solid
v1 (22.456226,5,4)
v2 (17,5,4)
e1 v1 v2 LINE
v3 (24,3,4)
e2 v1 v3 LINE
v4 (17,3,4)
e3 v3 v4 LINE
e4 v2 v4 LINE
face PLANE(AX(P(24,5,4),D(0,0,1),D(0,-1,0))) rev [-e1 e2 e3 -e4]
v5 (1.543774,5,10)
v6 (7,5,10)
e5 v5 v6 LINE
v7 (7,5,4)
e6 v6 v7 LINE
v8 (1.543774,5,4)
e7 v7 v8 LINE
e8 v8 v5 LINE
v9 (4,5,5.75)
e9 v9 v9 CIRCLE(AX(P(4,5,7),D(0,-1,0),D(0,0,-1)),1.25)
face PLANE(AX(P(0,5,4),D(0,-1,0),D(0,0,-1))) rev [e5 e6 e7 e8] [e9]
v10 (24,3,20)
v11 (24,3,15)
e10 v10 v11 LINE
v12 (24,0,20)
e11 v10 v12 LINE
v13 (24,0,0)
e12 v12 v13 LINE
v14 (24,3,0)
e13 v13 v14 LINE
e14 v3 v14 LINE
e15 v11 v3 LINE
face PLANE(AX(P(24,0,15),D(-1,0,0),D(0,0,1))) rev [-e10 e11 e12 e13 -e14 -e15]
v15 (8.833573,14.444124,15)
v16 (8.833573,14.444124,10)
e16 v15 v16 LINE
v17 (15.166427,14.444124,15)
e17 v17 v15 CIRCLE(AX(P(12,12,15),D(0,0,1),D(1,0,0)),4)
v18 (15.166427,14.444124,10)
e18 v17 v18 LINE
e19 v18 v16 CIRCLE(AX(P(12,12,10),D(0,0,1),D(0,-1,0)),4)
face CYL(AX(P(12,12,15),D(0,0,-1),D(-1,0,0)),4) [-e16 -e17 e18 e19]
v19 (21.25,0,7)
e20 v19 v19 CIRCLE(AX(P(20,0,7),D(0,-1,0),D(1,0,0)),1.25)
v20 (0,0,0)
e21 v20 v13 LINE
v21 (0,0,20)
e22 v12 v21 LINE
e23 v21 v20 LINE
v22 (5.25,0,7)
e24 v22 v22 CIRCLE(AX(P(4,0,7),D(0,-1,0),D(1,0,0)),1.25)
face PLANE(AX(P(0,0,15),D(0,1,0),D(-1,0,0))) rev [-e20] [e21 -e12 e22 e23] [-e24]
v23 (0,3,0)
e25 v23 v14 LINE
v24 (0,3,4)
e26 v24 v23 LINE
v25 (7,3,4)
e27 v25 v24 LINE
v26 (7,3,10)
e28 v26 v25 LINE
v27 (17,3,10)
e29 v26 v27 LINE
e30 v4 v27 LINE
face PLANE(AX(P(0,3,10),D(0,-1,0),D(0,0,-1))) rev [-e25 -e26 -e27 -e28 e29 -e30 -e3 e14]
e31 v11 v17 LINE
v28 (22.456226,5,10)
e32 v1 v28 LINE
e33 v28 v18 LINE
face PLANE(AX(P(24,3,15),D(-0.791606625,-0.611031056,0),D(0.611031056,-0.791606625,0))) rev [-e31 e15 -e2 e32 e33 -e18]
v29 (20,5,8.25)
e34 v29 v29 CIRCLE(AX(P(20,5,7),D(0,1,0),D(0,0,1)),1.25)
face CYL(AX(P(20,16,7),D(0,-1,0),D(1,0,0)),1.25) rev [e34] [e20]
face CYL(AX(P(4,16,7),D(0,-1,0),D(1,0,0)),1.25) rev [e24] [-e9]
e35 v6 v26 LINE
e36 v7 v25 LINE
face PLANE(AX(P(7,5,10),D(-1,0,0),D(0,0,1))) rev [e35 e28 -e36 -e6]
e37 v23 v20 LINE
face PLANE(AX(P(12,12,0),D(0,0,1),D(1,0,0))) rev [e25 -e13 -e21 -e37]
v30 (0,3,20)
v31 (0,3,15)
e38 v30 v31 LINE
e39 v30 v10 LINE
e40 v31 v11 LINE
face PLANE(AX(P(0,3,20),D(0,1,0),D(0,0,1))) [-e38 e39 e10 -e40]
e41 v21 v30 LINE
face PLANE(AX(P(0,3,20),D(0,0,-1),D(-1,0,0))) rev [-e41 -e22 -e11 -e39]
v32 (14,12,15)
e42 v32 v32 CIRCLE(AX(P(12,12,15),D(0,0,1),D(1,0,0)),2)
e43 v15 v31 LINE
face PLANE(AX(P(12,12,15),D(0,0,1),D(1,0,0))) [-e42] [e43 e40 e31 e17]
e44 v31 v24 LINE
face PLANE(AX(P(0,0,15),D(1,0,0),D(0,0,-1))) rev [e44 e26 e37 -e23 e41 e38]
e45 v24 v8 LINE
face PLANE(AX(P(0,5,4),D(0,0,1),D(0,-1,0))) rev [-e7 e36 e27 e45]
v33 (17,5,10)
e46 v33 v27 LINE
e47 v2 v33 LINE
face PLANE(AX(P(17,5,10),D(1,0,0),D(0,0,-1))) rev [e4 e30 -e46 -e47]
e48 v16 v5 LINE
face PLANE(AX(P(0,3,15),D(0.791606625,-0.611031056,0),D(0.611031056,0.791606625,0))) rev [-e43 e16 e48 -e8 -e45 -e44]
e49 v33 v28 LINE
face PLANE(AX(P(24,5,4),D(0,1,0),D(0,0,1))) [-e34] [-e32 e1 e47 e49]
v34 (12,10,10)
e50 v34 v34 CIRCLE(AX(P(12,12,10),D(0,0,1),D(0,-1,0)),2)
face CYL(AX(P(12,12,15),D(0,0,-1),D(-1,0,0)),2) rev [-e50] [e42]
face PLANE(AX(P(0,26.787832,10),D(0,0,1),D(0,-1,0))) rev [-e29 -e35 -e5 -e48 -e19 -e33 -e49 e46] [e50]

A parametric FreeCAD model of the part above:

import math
import FreeCAD as App
import Part
import Sketcher

V = App.Vector

doc = App.newDocument("Part")
body = doc.addObject("PartDesign::Body", "Body")

sketch1 = body.newObject("Sketcher::SketchObject", "Sketch")
sketch1.AttachmentSupport = (doc.getObject("XY_Plane"), [""])
sketch1.MapMode = "FlatFace"
sketch1.addGeometry([
    Part.LineSegment(V(0, 0, 0), V(24, 0, 0)),
    Part.LineSegment(V(24, 0, 0), V(24, 3, 0)),
    Part.LineSegment(V(24, 3, 0), V(15.166427, 14.444124, 0)),
    Part.ArcOfCircle(Part.Circle(V(12, 12, 0), V(0, 0, 1), 4), math.radians(37.664092), math.radians(142.335908)),
    Part.LineSegment(V(8.833573, 14.444124, 0), V(0, 3, 0)),
    Part.LineSegment(V(0, 3, 0), V(0, 0, 0)),
    Part.Circle(V(12, 12, 0), V(0, 0, 1), 2),
], False)
sketch1.addConstraint([
    Sketcher.Constraint("Coincident", 0, 2, 1, 1),
    Sketcher.Constraint("Coincident", 1, 2, 2, 1),
    Sketcher.Constraint("Tangent", 2, 2, 3, 1),
    Sketcher.Constraint("Tangent", 3, 2, 4, 1),
    Sketcher.Constraint("Coincident", 4, 2, 5, 1),
    Sketcher.Constraint("Coincident", 5, 2, 0, 1),
    Sketcher.Constraint("Horizontal", 0),
    Sketcher.Constraint("Vertical", 1),
    Sketcher.Constraint("Vertical", 5),
    Sketcher.Constraint("Coincident", 5, 2, -1, 1),
    Sketcher.Constraint("Coincident", 6, 3, 3, 3),
    Sketcher.Constraint("Horizontal", 2, 2, 3, 2),
    Sketcher.Constraint("Horizontal", 1, 2, 4, 2),
    Sketcher.Constraint("Diameter", 6, 4.0),
    Sketcher.Constraint("Radius", 3, 4.0),
    Sketcher.Constraint("DistanceX", 0, 1, 0, 2, 24.0),
    Sketcher.Constraint("DistanceY", 1, 1, 1, 2, 3.0),
    Sketcher.Constraint("DistanceY", -1, 1, 3, 3, 12.0),
])
pad1 = body.newObject("PartDesign::Pad", "Pad")
pad1.Profile = sketch1
pad1.Length = 15

sketch2 = body.newObject("Sketcher::SketchObject", "Sketch001")
sketch2.AttachmentSupport = (doc.getObject("YZ_Plane"), [""])
sketch2.MapMode = "FlatFace"
sketch2.AttachmentOffset = App.Placement(V(0, 0, 24), App.Rotation())
sketch2.addGeometry([
    Part.LineSegment(V(26.787832, 10, 0), V(3, 10, 0)),
    Part.LineSegment(V(3, 10, 0), V(3, 0, 0)),
    Part.LineSegment(V(3, 0, 0), V(26.787832, 0, 0)),
    Part.LineSegment(V(26.787832, 0, 0), V(26.787832, 10, 0)),
], False)
sketch2.addConstraint([
    Sketcher.Constraint("Coincident", 0, 2, 1, 1),
    Sketcher.Constraint("Coincident", 1, 2, 2, 1),
    Sketcher.Constraint("Coincident", 2, 2, 3, 1),
    Sketcher.Constraint("Coincident", 3, 2, 0, 1),
    Sketcher.Constraint("Horizontal", 0),
    Sketcher.Constraint("Vertical", 1),
    Sketcher.Constraint("Horizontal", 2),
    Sketcher.Constraint("Vertical", 3),
    Sketcher.Constraint("PointOnObject", 1, 2, -1),
    Sketcher.Constraint("DistanceY", 1, 2, 1, 1, 10.0),
    Sketcher.Constraint("DistanceX", -1, 1, 0, 2, 3.0),
    Sketcher.Constraint("DistanceX", 0, 2, 0, 1, 23.787832),
])
pocket1 = body.newObject("PartDesign::Pocket", "Pocket")
pocket1.Profile = sketch2
pocket1.Type = "ThroughAll"

sketch3 = body.newObject("Sketcher::SketchObject", "Sketch002")
sketch3.AttachmentSupport = (doc.getObject("XZ_Plane"), [""])
sketch3.MapMode = "FlatFace"
sketch3.AttachmentOffset = App.Placement(V(0, 0, -3), App.Rotation())
sketch3.addGeometry([
    Part.LineSegment(V(24, 10, 0), V(24, 4, 0)),
    Part.LineSegment(V(24, 4, 0), V(17, 4, 0)),
    Part.LineSegment(V(17, 4, 0), V(17, 10, 0)),
    Part.LineSegment(V(17, 10, 0), V(24, 10, 0)),
    Part.LineSegment(V(7, 10, 0), V(7, 4, 0)),
    Part.LineSegment(V(7, 4, 0), V(0, 4, 0)),
    Part.LineSegment(V(0, 4, 0), V(0, 10, 0)),
    Part.LineSegment(V(0, 10, 0), V(7, 10, 0)),
], False)
sketch3.addConstraint([
    Sketcher.Constraint("Coincident", 0, 2, 1, 1),
    Sketcher.Constraint("Coincident", 1, 2, 2, 1),
    Sketcher.Constraint("Coincident", 2, 2, 3, 1),
    Sketcher.Constraint("Coincident", 3, 2, 0, 1),
    Sketcher.Constraint("Coincident", 4, 2, 5, 1),
    Sketcher.Constraint("Coincident", 5, 2, 6, 1),
    Sketcher.Constraint("Coincident", 6, 2, 7, 1),
    Sketcher.Constraint("Coincident", 7, 2, 4, 1),
    Sketcher.Constraint("Vertical", 0),
    Sketcher.Constraint("Horizontal", 1),
    Sketcher.Constraint("Vertical", 2),
    Sketcher.Constraint("Horizontal", 3),
    Sketcher.Constraint("Vertical", 4),
    Sketcher.Constraint("Horizontal", 5),
    Sketcher.Constraint("Vertical", 6),
    Sketcher.Constraint("Horizontal", 7),
    Sketcher.Constraint("PointOnObject", 5, 2, -2),
    Sketcher.Constraint("Horizontal", 1, 2, 4, 2),
    Sketcher.Constraint("Horizontal", 3, 2, 6, 2),
    Sketcher.Constraint("Equal", 3, 5),
    Sketcher.Constraint("DistanceX", 1, 2, 1, 1, 7.0),
    Sketcher.Constraint("DistanceY", 0, 2, 0, 1, 6.0),
    Sketcher.Constraint("DistanceX", -1, 1, 0, 2, 24.0),
    Sketcher.Constraint("DistanceY", -1, 1, 0, 2, 4.0),
])
pad2 = body.newObject("PartDesign::Pad", "Pad001")
pad2.Profile = sketch3
pad2.Length = 2
pad2.Reversed = True

sketch4 = body.newObject("Sketcher::SketchObject", "Sketch003")
sketch4.AttachmentSupport = (doc.getObject("XZ_Plane"), [""])
sketch4.MapMode = "FlatFace"
sketch4.addGeometry([
    Part.Circle(V(4, 7, 0), V(0, 0, 1), 1.25),
    Part.Circle(V(20, 7, 0), V(0, 0, 1), 1.25),
], False)
sketch4.addConstraint([
    Sketcher.Constraint("Equal", 0, 1),
    Sketcher.Constraint("Horizontal", 0, 3, 1, 3),
    Sketcher.Constraint("Diameter", 0, 2.5),
    Sketcher.Constraint("DistanceX", -1, 1, 0, 3, 4.0),
    Sketcher.Constraint("DistanceY", -1, 1, 0, 3, 7.0),
    Sketcher.Constraint("DistanceX", -1, 1, 1, 3, 20.0),
])
pocket2 = body.newObject("PartDesign::Pocket", "Pocket001")
pocket2.Profile = sketch4
pocket2.Type = "ThroughAll"

sketch5 = body.newObject("Sketcher::SketchObject", "Sketch004")
sketch5.AttachmentSupport = (doc.getObject("XY_Plane"), [""])
sketch5.MapMode = "FlatFace"
sketch5.AttachmentOffset = App.Placement(V(0, 0, 15), App.Rotation())
sketch5.addGeometry([
    Part.LineSegment(V(0, 0, 0), V(0, 3, 0)),
    Part.LineSegment(V(0, 3, 0), V(24, 3, 0)),
    Part.LineSegment(V(24, 3, 0), V(24, 0, 0)),
    Part.LineSegment(V(24, 0, 0), V(0, 0, 0)),
], False)
sketch5.addConstraint([
    Sketcher.Constraint("Coincident", 0, 2, 1, 1),
    Sketcher.Constraint("Coincident", 1, 2, 2, 1),
    Sketcher.Constraint("Coincident", 2, 2, 3, 1),
    Sketcher.Constraint("Coincident", 3, 2, 0, 1),
    Sketcher.Constraint("Vertical", 0),
    Sketcher.Constraint("Horizontal", 1),
    Sketcher.Constraint("Vertical", 2),
    Sketcher.Constraint("Horizontal", 3),
    Sketcher.Constraint("Coincident", 3, 2, -1, 1),
    Sketcher.Constraint("DistanceX", 1, 1, 1, 2, 24.0),
    Sketcher.Constraint("DistanceY", 0, 1, 0, 2, 3.0),
])
pad3 = body.newObject("PartDesign::Pad", "Pad002")
pad3.Profile = sketch5
pad3.Length = 5

sketch6 = body.newObject("Sketcher::SketchObject", "Sketch005")
sketch6.AttachmentSupport = (doc.getObject("XY_Plane"), [""])
sketch6.MapMode = "FlatFace"
sketch6.AttachmentOffset = App.Placement(V(0, 0, 10), App.Rotation())
sketch6.addGeometry([
    Part.LineSegment(V(0, 5, 0), V(0, 3, 0)),
    Part.LineSegment(V(0, 3, 0), V(1.543774, 5, 0)),
    Part.LineSegment(V(1.543774, 5, 0), V(0, 5, 0)),
    Part.LineSegment(V(24, 5, 0), V(22.456226, 5, 0)),
    Part.LineSegment(V(22.456226, 5, 0), V(24, 3, 0)),
    Part.LineSegment(V(24, 3, 0), V(24, 5, 0)),
], False)
sketch6.addConstraint([
    Sketcher.Constraint("Coincident", 0, 2, 1, 1),
    Sketcher.Constraint("Coincident", 1, 2, 2, 1),
    Sketcher.Constraint("Coincident", 2, 2, 0, 1),
    Sketcher.Constraint("Coincident", 3, 2, 4, 1),
    Sketcher.Constraint("Coincident", 4, 2, 5, 1),
    Sketcher.Constraint("Coincident", 5, 2, 3, 1),
    Sketcher.Constraint("Vertical", 0),
    Sketcher.Constraint("Horizontal", 2),
    Sketcher.Constraint("Horizontal", 3),
    Sketcher.Constraint("Vertical", 5),
    Sketcher.Constraint("PointOnObject", 0, 2, -2),
    Sketcher.Constraint("Horizontal", 2, 2, 3, 2),
    Sketcher.Constraint("Horizontal", 0, 2, 4, 2),
    Sketcher.Constraint("Equal", 2, 3),
    Sketcher.Constraint("DistanceY", 0, 2, 0, 1, 2.0),
    Sketcher.Constraint("DistanceY", -1, 1, 0, 2, 3.0),
    Sketcher.Constraint("DistanceX", -1, 1, 4, 2, 24.0),
    Sketcher.Constraint("DistanceX", 2, 2, 2, 1, 1.543774),
])
pocket3 = body.newObject("PartDesign::Pocket", "Pocket002")
pocket3.Profile = sketch6
pocket3.Type = "ThroughAll"

doc.recompute()
